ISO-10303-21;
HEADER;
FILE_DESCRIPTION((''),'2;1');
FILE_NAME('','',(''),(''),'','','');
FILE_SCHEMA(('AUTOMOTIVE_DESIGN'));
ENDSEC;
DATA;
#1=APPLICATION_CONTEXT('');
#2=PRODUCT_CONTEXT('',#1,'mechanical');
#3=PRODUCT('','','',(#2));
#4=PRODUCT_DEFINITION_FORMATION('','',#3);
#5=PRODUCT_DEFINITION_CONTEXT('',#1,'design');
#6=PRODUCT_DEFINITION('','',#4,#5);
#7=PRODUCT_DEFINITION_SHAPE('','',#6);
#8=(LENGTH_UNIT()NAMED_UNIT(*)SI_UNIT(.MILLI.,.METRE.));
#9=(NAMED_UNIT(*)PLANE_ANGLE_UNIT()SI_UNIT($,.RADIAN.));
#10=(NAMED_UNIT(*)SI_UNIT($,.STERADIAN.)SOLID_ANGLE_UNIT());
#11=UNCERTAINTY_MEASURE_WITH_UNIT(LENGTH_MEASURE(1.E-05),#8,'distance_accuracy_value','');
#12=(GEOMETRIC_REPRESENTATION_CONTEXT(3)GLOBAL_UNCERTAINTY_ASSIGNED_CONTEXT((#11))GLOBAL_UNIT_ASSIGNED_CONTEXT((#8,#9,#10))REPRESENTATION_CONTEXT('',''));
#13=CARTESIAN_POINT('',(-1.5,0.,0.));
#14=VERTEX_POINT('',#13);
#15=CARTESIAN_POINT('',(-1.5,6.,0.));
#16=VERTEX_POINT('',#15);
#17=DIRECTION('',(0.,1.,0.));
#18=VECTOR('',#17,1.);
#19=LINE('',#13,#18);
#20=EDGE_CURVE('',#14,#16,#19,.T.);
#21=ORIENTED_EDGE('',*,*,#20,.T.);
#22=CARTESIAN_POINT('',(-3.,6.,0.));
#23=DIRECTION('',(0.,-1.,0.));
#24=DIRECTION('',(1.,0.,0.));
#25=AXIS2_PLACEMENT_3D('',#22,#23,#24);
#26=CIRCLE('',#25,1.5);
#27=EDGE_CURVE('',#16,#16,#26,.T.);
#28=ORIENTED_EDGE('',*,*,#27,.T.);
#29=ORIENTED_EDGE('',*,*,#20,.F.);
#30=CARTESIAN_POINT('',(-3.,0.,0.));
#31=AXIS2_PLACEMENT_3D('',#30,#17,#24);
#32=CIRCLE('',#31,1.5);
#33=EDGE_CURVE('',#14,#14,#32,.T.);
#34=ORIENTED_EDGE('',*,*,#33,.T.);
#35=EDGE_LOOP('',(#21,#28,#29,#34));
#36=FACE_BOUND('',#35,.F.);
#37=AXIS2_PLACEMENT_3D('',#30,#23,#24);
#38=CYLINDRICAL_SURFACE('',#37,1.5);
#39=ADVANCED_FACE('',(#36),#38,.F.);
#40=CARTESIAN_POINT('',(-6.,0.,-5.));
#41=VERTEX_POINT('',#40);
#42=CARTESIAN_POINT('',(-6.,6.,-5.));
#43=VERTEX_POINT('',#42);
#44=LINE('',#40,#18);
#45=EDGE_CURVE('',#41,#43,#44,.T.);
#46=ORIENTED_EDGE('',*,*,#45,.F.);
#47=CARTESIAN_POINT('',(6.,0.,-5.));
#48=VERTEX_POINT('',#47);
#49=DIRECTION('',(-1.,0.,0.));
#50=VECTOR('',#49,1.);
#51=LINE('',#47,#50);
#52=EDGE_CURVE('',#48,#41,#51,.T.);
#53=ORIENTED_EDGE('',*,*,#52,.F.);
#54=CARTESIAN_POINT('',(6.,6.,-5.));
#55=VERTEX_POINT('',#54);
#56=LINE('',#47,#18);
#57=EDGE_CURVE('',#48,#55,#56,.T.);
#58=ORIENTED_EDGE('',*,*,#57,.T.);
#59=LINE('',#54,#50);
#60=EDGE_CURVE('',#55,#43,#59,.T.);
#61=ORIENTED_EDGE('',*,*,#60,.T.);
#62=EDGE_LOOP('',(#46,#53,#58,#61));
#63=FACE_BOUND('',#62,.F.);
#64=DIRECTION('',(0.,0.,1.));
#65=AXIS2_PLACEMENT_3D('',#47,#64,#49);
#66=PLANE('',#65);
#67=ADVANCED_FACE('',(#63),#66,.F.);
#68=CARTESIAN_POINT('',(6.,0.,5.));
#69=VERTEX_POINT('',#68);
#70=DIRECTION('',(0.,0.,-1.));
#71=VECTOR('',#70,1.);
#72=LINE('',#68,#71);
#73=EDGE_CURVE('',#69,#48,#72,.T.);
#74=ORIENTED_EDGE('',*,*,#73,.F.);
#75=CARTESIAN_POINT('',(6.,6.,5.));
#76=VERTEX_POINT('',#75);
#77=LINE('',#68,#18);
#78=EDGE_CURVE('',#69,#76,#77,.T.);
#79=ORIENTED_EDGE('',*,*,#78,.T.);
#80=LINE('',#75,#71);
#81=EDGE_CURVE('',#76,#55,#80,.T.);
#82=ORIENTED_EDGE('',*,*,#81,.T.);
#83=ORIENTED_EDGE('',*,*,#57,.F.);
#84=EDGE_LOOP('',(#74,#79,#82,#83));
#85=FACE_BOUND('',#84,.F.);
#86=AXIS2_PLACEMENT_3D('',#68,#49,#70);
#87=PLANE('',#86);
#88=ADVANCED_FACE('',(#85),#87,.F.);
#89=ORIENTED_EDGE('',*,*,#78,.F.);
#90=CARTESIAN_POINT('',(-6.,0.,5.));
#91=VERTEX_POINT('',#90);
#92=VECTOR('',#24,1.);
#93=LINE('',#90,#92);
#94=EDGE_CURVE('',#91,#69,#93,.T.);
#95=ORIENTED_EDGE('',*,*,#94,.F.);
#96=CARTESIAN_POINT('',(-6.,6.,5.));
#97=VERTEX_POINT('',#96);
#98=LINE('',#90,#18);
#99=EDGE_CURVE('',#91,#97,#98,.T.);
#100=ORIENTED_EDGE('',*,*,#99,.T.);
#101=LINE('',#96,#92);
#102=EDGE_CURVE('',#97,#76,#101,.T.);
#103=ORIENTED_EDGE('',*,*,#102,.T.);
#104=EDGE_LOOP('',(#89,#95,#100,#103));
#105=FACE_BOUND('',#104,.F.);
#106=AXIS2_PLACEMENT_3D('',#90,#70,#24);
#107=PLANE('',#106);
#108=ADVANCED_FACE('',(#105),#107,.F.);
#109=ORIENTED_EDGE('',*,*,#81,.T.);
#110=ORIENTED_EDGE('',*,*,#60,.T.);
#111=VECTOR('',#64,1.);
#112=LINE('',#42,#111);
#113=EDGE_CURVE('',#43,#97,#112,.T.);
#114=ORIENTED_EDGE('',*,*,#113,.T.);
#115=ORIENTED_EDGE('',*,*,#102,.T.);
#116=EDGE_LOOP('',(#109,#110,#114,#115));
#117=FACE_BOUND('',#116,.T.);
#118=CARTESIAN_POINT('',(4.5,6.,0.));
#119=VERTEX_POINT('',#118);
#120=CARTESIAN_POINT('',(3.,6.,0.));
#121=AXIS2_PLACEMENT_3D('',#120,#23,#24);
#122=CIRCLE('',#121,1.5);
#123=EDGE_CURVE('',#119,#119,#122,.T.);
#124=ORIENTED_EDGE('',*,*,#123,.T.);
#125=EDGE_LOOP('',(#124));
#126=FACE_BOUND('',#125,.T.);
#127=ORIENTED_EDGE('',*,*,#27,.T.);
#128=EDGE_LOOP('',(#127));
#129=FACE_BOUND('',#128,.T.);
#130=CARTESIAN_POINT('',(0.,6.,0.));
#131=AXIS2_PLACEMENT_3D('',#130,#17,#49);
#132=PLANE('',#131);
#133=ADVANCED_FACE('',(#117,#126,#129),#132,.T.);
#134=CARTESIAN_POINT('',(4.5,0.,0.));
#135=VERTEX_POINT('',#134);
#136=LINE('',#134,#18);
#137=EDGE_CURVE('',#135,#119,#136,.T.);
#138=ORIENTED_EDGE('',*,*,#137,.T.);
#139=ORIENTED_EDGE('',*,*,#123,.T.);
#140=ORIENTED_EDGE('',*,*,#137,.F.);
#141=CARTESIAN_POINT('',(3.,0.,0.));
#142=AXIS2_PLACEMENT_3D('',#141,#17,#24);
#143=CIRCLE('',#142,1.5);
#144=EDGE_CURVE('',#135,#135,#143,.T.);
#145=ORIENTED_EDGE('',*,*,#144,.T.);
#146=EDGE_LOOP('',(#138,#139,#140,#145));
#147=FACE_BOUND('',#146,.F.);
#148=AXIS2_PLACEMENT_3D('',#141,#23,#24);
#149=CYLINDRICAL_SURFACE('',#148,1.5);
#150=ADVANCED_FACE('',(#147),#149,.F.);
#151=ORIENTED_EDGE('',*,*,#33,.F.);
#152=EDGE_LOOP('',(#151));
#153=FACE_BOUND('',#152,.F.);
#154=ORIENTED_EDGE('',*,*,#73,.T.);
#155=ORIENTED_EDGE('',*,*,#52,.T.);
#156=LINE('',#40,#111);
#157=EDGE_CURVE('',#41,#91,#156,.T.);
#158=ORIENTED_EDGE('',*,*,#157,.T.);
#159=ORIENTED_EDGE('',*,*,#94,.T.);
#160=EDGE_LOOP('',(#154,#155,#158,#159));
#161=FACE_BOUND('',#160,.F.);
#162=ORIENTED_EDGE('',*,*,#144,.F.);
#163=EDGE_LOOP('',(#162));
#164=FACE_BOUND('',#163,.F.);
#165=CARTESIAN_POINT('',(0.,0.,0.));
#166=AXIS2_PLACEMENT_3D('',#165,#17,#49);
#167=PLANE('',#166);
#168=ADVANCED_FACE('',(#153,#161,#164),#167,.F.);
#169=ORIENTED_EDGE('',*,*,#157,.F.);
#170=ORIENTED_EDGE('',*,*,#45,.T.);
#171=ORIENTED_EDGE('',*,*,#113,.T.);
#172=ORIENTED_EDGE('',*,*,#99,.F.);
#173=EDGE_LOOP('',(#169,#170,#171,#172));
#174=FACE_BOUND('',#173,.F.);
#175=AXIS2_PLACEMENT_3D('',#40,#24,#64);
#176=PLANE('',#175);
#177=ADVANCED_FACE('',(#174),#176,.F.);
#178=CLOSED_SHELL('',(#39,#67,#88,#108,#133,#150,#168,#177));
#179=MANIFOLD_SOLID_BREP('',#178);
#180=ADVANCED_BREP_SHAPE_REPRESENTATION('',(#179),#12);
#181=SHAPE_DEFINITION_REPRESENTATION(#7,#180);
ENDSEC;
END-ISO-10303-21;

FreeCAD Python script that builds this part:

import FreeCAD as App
import Part
import Sketcher


def add_polygon(sketch, points):
    """Adds a closed chain of lines whose ends are joined by coincident constraints."""
    first, n = sketch.GeometryCount, len(points)
    for a, b in zip(points, points[1:] + points[:1]):
        sketch.addGeometry(Part.LineSegment(App.Vector(*a, 0), App.Vector(*b, 0)), False)
    for i in range(n):
        sketch.addConstraint(Sketcher.Constraint("Coincident", first + i, 2, first + (i + 1) % n, 1))

doc = App.newDocument("Part")
params = doc.addObject("Spreadsheet::Sheet", "Params")
for row, (alias, value) in enumerate([
    ("sketch1_width", "12 mm"),
    ("sketch1_height", "10 mm"),
    ("pad1_length", "6 mm"),
    ("sketch2_diameter", "3 mm"),
    ("pocket1_length", "6 mm"),
    ("sketch3_diameter", "3 mm"),
    ("pad2_length", "6 mm"),
    ("sketch4_diameter", "3 mm"),
    ("pocket2_length", "6 mm"),
], start=1):
    params.set(f"A{row}", alias)
    params.set(f"B{row}", "=" + value)
    params.setAlias(f"B{row}", alias)

body = doc.addObject("PartDesign::Body", "Body")

# Sketch on XZ plane
sketch1 = body.newObject("Sketcher::SketchObject", "Sketch")
sketch1.AttachmentSupport = (doc.getObject("XZ_Plane"), [""])
sketch1.MapMode = "FlatFace"
add_polygon(sketch1, [(-6, -5), (-6, 5), (6, 5), (6, -5)])  # lines 0-3
sketch1.addConstraint([
    Sketcher.Constraint("Vertical", 0),
    Sketcher.Constraint("Horizontal", 1),
    Sketcher.Constraint("Vertical", 2),
    Sketcher.Constraint("Horizontal", 3),
    Sketcher.Constraint("Symmetric", 0, 2, 2, 2, -1, 1),
    Sketcher.Constraint("DistanceX", 1, 1, 1, 2, 12.0),
    Sketcher.Constraint("DistanceY", 0, 1, 0, 2, 10.0),
])
sketch1.setExpression("Constraints[9]", "Params.sketch1_width")
sketch1.setExpression("Constraints[10]", "Params.sketch1_height")
pad1 = body.newObject("PartDesign::Pad", "Pad")
pad1.Profile = sketch1
pad1.setExpression("Length", "Params.pad1_length")
pad1.Reversed = True

# Sketch on XZ plane
sketch2 = body.newObject("Sketcher::SketchObject", "Sketch001")
sketch2.AttachmentSupport = (doc.getObject("XZ_Plane"), [""])
sketch2.MapMode = "FlatFace"
sketch2.AttachmentOffset = App.Placement(App.Vector(0, 0, -6), App.Rotation())
sketch2.addGeometry([
    Part.Circle(App.Vector(-3, 0, 0), App.Vector(0, 0, 1), 1.5),
    Part.Circle(App.Vector(3, 0, 0), App.Vector(0, 0, 1), 1.5),
], False)
sketch2.addConstraint([
    Sketcher.Constraint("Equal", 0, 1),
    Sketcher.Constraint("Symmetric", 0, 3, 1, 3, -1, 1),
    Sketcher.Constraint("PointOnObject", 0, 3, -1),
    Sketcher.Constraint("Diameter", 0, 3.0),
    Sketcher.Constraint("DistanceX", 0, 3, -1, 1, 3.0),
])
sketch2.setExpression("Constraints[3]", "Params.sketch2_diameter")
pocket1 = body.newObject("PartDesign::Pocket", "Pocket")
pocket1.Profile = sketch2
pocket1.setExpression("Length", "Params.pocket1_length")
pocket1.Reversed = True

# Sketch on XZ plane
sketch3 = body.newObject("Sketcher::SketchObject", "Sketch002")
sketch3.AttachmentSupport = (doc.getObject("XZ_Plane"), [""])
sketch3.MapMode = "FlatFace"
sketch3.addGeometry([
    Part.Circle(App.Vector(-3, 0, 0), App.Vector(0, 0, 1), 1.5),
    Part.Circle(App.Vector(3, 0, 0), App.Vector(0, 0, 1), 1.5),
], False)
sketch3.addConstraint([
    Sketcher.Constraint("Equal", 0, 1),
    Sketcher.Constraint("Symmetric", 0, 3, 1, 3, -1, 1),
    Sketcher.Constraint("PointOnObject", 0, 3, -1),
    Sketcher.Constraint("Diameter", 0, 3.0),
    Sketcher.Constraint("DistanceX", 0, 3, -1, 1, 3.0),
])
sketch3.setExpression("Constraints[3]", "Params.sketch3_diameter")
pad2 = body.newObject("PartDesign::Pad", "Pad001")
pad2.Profile = sketch3
pad2.setExpression("Length", "Params.pad2_length")
pad2.Reversed = True

# Sketch on XZ plane
sketch4 = body.newObject("Sketcher::SketchObject", "Sketch003")
sketch4.AttachmentSupport = (doc.getObject("XZ_Plane"), [""])
sketch4.MapMode = "FlatFace"
sketch4.addGeometry([
    Part.Circle(App.Vector(-3, 0, 0), App.Vector(0, 0, 1), 1.5),
    Part.Circle(App.Vector(3, 0, 0), App.Vector(0, 0, 1), 1.5),
], False)
sketch4.addConstraint([
    Sketcher.Constraint("Equal", 0, 1),
    Sketcher.Constraint("Symmetric", 0, 3, 1, 3, -1, 1),
    Sketcher.Constraint("PointOnObject", 0, 3, -1),
    Sketcher.Constraint("Diameter", 0, 3.0),
    Sketcher.Constraint("DistanceX", 0, 3, -1, 1, 3.0),
])
sketch4.setExpression("Constraints[3]", "Params.sketch4_diameter")
pocket2 = body.newObject("PartDesign::Pocket", "Pocket001")
pocket2.Profile = sketch4
pocket2.setExpression("Length", "Params.pocket2_length")

doc.recompute()
